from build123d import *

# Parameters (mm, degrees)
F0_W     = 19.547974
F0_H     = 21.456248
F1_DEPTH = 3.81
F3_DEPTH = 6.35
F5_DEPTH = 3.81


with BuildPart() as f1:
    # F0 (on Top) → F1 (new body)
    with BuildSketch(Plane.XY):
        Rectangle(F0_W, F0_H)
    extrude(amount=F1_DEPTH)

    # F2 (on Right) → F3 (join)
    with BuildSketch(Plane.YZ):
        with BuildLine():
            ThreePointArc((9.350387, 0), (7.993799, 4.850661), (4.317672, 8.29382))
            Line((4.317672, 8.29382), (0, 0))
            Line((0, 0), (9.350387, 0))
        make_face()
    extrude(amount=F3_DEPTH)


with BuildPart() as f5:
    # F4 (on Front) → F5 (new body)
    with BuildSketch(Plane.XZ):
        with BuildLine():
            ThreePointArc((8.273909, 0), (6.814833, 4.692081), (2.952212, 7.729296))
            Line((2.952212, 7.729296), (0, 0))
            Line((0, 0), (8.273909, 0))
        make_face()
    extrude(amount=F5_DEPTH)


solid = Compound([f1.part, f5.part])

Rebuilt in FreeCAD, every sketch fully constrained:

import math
import FreeCAD as App
import Part
import Sketcher


def add_polygon(sketch, points):
    """Adds a closed chain of lines whose ends are joined by coincident constraints."""
    first, n = sketch.GeometryCount, len(points)
    for a, b in zip(points, points[1:] + points[:1]):
        sketch.addGeometry(Part.LineSegment(App.Vector(*a, 0), App.Vector(*b, 0)), False)
    for i in range(n):
        sketch.addConstraint(Sketcher.Constraint("Coincident", first + i, 2, first + (i + 1) % n, 1))

doc = App.newDocument("Part")
params = doc.addObject("Spreadsheet::Sheet", "Params")
for row, (alias, value) in enumerate([
    ("pad1_length", "0.15 in"),
    ("pad2_length", "0.25 in"),
    ("pad3_length", "0.15 in"),
], start=1):
    params.set(f"A{row}", alias)
    params.set(f"B{row}", "=" + value)
    params.setAlias(f"B{row}", alias)

body = doc.addObject("PartDesign::Body", "Body")

# Sketch on XY plane
sketch1 = doc.addObject("Sketcher::SketchObject", "Sketch")
body.addObject(sketch1)
sketch1.AttachmentSupport = (doc.XY_Plane, [""])
sketch1.MapMode = "FlatFace"
add_polygon(sketch1, [(-10, 11), (-10, -11), (10, -11), (10, 11)])  # lines 0-3
sketch1.addConstraint([
    Sketcher.Constraint("Vertical", 0),
    Sketcher.Constraint("Horizontal", 1),
    Sketcher.Constraint("Vertical", 2),
    Sketcher.Constraint("Horizontal", 3),
    Sketcher.Constraint("Symmetric", 0, 2, 2, 2, -1, 1),
    Sketcher.Constraint("DistanceX", 1, 1, 1, 2, 19.547974),
    Sketcher.Constraint("DistanceY", 0, 2, 0, 1, 21.456248),
])
pad1 = doc.addObject("PartDesign::Pad", "Pad")
body.addObject(pad1)
pad1.Profile = sketch1
pad1.setExpression("Length", "Params.pad1_length")

# Sketch on YZ plane
sketch2 = doc.addObject("Sketcher::SketchObject", "Sketch001")
body.addObject(sketch2)
sketch2.AttachmentSupport = (doc.YZ_Plane, [""])
sketch2.MapMode = "FlatFace"
sketch2.addGeometry([
    Part.ArcOfCircle(Part.Circle(App.Vector(0, 0, 0), App.Vector(0, 0, 1), 9), math.radians(0), math.radians(62)),
    Part.LineSegment(App.Vector(4, 8, 0), App.Vector(0, 0, 0)),
    Part.LineSegment(App.Vector(0, 0, 0), App.Vector(9, 0, 0)),
], False)
sketch2.addConstraint([
    Sketcher.Constraint("Coincident", 0, 2, 1, 1),
    Sketcher.Constraint("Coincident", 1, 2, 2, 1),
    Sketcher.Constraint("Coincident", 2, 2, 0, 1),
    Sketcher.Constraint("Horizontal", 2),
    Sketcher.Constraint("Coincident", 0, 3, -1, 1),
    Sketcher.Constraint("Coincident", 1, 2, -1, 1),
    Sketcher.Constraint("Radius", 0, 9.350389),
    Sketcher.Constraint("DistanceX", -1, 1, 0, 2, 4.317672),
])
pad2 = doc.addObject("PartDesign::Pad", "Pad001")
body.addObject(pad2)
pad2.Profile = sketch2
pad2.setExpression("Length", "Params.pad2_length")
body2 = doc.addObject("PartDesign::Body", "Body001")

# Sketch on XZ plane
sketch3 = doc.addObject("Sketcher::SketchObject", "Sketch002")
body2.addObject(sketch3)
sketch3.AttachmentSupport = (doc.getObject("XZ_Plane001"), [""])
sketch3.MapMode = "FlatFace"
sketch3.addGeometry([
    Part.ArcOfCircle(Part.Circle(App.Vector(0, 0, 0), App.Vector(0, 0, 1), 8), math.radians(0), math.radians(69)),
    Part.LineSegment(App.Vector(3, 8, 0), App.Vector(0, 0, 0)),
    Part.LineSegment(App.Vector(0, 0, 0), App.Vector(8, 0, 0)),
], False)
sketch3.addConstraint([
    Sketcher.Constraint("Coincident", 0, 2, 1, 1),
    Sketcher.Constraint("Coincident", 1, 2, 2, 1),
    Sketcher.Constraint("Coincident", 2, 2, 0, 1),
    Sketcher.Constraint("Horizontal", 2),
    Sketcher.Constraint("Coincident", 0, 3, -1, 1),
    Sketcher.Constraint("Coincident", 1, 2, -1, 1),
    Sketcher.Constraint("Radius", 0, 8.273909),
    Sketcher.Constraint("DistanceX", -1, 1, 0, 2, 2.952212),
])
pad3 = doc.addObject("PartDesign::Pad", "Pad002")
body2.addObject(pad3)
pad3.Profile = sketch3
pad3.setExpression("Length", "Params.pad3_length")

doc.recompute()
